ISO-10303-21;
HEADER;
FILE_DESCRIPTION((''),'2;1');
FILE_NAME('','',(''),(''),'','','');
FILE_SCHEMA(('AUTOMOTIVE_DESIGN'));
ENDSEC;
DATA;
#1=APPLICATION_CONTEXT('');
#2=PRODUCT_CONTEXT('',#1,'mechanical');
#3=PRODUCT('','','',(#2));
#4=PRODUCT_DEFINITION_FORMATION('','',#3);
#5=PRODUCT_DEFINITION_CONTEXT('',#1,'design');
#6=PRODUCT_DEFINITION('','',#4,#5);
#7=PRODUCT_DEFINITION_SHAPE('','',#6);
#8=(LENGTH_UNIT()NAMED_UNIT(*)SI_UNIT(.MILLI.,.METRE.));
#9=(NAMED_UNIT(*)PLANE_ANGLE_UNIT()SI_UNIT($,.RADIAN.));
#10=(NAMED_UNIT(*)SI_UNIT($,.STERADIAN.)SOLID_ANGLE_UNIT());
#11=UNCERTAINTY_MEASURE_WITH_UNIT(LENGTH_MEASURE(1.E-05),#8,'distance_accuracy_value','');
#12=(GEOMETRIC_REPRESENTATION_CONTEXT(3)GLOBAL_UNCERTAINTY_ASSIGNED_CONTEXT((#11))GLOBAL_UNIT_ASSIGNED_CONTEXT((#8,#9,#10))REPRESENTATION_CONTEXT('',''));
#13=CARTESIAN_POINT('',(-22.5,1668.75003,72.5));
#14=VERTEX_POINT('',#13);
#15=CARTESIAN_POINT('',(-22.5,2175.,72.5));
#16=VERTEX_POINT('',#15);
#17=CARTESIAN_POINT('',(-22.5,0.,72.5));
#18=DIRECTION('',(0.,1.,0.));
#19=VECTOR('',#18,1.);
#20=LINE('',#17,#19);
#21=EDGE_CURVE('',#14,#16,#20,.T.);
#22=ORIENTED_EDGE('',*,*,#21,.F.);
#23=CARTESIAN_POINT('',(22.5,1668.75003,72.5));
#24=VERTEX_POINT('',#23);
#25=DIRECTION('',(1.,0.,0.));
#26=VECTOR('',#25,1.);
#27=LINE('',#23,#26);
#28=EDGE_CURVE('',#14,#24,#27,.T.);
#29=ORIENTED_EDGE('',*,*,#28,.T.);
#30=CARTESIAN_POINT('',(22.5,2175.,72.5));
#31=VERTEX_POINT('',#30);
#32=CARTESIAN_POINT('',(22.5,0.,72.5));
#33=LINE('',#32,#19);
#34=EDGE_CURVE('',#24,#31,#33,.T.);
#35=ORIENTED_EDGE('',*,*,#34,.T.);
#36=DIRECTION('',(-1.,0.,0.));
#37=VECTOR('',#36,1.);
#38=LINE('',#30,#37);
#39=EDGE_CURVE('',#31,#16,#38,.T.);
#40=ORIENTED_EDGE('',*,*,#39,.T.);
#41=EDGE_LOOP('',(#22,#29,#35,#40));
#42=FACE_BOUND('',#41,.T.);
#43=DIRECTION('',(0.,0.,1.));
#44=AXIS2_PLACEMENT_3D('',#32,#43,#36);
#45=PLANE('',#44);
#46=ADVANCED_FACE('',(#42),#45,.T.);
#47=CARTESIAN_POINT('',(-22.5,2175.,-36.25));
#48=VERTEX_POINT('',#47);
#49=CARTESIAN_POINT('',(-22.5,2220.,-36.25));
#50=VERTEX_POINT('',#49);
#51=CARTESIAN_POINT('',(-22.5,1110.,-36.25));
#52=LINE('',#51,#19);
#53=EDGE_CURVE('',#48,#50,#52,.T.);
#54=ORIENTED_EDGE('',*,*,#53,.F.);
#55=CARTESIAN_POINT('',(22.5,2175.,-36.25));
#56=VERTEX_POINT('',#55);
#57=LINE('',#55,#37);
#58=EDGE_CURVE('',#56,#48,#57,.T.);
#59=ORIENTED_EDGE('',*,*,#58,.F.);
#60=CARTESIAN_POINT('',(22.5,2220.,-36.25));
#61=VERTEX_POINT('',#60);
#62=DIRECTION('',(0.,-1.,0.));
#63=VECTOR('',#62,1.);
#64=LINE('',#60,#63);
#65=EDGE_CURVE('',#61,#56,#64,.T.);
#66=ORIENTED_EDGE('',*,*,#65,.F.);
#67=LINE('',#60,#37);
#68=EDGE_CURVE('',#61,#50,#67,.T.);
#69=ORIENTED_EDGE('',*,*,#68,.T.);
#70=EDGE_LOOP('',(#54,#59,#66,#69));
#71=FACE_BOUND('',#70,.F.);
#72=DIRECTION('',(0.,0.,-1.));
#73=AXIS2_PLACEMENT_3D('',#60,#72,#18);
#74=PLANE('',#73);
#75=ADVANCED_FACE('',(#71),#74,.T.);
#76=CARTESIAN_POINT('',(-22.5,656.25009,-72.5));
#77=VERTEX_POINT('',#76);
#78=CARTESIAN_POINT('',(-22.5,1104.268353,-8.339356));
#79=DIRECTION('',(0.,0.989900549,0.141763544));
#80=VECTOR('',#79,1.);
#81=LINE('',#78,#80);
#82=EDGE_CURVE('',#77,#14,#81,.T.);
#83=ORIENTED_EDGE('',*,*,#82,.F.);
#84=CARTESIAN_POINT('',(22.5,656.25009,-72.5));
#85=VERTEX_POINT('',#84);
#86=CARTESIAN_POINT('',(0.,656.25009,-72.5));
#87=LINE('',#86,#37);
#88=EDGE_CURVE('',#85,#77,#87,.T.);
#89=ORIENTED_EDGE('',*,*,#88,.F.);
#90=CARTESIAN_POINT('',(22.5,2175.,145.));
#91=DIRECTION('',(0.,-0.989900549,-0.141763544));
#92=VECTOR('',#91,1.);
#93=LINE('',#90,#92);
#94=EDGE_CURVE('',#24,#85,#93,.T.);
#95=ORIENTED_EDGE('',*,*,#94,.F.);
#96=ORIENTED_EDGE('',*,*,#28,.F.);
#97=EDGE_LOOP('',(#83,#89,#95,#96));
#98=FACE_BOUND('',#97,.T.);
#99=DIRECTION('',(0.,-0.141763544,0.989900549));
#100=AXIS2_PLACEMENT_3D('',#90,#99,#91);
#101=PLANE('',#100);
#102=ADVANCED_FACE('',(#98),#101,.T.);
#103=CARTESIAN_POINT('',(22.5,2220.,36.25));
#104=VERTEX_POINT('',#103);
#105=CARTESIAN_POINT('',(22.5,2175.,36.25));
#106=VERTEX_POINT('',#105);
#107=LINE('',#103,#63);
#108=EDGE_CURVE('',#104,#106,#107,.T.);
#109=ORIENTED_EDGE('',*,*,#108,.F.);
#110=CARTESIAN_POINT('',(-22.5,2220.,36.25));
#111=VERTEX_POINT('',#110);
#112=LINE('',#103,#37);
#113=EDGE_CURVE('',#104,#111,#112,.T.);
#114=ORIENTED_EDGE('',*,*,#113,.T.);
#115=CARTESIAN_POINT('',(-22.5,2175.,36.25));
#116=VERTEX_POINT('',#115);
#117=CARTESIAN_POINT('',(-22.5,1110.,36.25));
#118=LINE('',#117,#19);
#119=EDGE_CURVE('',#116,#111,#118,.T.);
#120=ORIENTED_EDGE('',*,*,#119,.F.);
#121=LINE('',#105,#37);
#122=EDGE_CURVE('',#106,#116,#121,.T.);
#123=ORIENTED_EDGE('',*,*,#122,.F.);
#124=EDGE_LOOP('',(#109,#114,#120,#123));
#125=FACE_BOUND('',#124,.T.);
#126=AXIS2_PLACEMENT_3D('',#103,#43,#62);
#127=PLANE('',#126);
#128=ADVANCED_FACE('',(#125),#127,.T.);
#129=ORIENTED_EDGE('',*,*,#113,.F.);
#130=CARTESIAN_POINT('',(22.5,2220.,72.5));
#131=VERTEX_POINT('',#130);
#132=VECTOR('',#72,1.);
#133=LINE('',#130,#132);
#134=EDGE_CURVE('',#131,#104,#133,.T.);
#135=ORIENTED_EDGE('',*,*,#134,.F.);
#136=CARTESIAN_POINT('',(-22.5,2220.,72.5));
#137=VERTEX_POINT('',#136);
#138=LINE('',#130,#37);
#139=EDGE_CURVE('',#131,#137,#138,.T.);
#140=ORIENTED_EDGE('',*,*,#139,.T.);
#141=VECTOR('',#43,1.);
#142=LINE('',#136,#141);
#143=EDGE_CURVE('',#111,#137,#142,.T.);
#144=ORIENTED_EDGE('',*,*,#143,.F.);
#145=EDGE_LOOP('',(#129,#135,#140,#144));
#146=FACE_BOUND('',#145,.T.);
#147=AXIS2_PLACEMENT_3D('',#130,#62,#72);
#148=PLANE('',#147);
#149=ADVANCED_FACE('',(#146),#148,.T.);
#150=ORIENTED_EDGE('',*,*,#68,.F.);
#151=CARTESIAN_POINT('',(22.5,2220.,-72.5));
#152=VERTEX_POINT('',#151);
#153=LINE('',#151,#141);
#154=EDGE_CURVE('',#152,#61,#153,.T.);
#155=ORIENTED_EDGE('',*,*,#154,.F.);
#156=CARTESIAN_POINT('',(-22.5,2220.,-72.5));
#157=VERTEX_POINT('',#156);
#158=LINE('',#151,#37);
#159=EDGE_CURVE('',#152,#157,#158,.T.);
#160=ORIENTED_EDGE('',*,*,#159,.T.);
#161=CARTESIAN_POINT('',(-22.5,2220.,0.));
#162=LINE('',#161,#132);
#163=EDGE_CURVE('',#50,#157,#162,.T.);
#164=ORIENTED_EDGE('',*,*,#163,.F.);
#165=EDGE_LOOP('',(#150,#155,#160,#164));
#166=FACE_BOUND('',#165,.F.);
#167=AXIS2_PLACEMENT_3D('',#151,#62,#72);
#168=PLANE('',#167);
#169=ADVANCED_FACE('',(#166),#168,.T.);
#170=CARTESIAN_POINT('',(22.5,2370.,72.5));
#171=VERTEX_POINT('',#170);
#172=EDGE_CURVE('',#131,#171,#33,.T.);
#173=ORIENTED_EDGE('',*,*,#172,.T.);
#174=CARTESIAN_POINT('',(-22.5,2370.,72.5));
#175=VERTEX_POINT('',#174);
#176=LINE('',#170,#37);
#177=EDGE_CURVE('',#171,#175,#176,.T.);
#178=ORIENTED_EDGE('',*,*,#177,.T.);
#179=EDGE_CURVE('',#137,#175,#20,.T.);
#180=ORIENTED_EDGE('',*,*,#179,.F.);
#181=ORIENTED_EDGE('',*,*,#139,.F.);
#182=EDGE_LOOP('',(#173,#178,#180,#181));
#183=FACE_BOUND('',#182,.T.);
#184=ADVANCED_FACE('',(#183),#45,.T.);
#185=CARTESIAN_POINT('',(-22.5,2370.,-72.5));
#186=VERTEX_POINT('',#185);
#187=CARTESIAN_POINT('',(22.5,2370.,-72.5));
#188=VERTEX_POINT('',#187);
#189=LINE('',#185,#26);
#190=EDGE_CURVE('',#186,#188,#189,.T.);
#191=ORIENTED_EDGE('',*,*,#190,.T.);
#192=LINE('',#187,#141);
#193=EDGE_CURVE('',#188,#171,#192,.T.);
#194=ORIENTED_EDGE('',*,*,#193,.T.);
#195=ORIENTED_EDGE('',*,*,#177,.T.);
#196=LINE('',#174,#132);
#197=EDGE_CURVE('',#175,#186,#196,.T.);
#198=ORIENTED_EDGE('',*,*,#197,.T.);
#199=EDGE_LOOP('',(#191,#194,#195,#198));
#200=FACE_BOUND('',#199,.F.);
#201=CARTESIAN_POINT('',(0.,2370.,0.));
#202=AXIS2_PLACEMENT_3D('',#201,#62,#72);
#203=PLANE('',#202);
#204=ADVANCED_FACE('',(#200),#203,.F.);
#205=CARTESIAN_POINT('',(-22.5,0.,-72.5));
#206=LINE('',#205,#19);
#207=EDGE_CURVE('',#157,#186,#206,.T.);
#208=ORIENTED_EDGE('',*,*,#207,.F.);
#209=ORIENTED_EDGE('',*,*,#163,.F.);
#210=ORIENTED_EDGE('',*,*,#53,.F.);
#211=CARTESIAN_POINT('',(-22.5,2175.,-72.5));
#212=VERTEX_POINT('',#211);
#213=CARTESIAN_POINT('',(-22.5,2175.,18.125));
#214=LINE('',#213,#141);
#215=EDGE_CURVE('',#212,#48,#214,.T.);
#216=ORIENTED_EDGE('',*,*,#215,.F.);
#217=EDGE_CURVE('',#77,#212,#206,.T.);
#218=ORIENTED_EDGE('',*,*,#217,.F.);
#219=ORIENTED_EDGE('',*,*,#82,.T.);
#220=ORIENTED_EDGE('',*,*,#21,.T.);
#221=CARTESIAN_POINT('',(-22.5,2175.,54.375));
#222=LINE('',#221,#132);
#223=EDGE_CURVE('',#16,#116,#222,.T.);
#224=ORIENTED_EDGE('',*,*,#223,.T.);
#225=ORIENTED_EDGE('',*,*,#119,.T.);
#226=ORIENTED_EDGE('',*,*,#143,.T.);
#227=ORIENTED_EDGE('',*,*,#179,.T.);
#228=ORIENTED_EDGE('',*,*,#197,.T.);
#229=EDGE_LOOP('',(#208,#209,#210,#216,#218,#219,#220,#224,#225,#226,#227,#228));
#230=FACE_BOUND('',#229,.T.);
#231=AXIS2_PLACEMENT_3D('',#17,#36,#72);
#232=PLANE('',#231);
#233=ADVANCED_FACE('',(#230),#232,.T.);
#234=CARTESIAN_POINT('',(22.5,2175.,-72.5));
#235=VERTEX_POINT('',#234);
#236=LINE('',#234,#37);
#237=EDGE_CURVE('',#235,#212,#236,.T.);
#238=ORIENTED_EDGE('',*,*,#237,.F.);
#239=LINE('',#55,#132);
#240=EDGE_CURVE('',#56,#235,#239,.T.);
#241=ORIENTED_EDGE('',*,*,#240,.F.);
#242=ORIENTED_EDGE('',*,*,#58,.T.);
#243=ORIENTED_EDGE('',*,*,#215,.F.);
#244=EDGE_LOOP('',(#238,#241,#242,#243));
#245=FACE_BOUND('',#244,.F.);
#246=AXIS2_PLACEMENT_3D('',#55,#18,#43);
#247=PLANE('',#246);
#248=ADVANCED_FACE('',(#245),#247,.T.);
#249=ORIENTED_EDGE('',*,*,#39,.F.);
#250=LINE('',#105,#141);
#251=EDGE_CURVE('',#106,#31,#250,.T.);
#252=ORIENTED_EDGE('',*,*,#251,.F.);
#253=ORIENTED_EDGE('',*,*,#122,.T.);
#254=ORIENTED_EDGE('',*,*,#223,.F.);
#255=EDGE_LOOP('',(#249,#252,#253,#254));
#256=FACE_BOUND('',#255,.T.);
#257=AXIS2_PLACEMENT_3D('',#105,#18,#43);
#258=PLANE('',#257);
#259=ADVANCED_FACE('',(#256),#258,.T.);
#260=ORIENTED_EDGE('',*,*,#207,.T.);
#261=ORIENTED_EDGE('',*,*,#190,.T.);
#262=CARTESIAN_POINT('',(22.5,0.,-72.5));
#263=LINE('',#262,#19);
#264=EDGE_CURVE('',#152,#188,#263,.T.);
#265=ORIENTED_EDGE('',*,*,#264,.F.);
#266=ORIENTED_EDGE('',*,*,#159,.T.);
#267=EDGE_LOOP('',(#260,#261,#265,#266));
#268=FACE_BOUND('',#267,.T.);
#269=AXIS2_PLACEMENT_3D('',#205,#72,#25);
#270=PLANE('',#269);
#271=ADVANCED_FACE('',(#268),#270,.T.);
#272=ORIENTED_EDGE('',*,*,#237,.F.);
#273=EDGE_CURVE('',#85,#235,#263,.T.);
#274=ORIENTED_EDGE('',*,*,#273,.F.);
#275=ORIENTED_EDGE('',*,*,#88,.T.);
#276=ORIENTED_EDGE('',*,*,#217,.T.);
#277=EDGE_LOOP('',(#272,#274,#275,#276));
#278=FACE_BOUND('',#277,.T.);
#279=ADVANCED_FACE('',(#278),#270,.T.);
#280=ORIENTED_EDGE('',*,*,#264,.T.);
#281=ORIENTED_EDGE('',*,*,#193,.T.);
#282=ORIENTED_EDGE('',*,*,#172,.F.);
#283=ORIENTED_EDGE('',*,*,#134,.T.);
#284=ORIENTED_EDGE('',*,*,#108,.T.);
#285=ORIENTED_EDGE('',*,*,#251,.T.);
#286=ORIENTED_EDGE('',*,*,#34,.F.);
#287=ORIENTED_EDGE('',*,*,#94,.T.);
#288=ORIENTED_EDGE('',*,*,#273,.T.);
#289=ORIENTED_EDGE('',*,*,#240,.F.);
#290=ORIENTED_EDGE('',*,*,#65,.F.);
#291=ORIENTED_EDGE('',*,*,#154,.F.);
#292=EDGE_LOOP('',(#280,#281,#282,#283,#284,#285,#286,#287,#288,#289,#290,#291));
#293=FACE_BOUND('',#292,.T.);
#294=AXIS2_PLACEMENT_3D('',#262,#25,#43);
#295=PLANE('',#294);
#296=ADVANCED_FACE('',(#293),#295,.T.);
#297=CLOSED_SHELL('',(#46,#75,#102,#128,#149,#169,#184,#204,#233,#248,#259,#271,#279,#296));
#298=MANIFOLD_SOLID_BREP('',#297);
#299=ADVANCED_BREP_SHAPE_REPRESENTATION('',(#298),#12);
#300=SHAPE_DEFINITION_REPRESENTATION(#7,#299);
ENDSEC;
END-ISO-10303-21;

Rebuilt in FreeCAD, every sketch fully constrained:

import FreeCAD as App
import Part
import Sketcher


def add_polygon(sketch, points):
    """Adds a closed chain of lines whose ends are joined by coincident constraints."""
    first, n = sketch.GeometryCount, len(points)
    for a, b in zip(points, points[1:] + points[:1]):
        sketch.addGeometry(Part.LineSegment(App.Vector(*a, 0), App.Vector(*b, 0)), False)
    for i in range(n):
        sketch.addConstraint(Sketcher.Constraint("Coincident", first + i, 2, first + (i + 1) % n, 1))

doc = App.newDocument("Part")
body = doc.addObject("PartDesign::Body", "Body")

sketch1 = body.newObject("Sketcher::SketchObject", "Sketch")
sketch1.AttachmentSupport = (doc.getObject("XZ_Plane"), [""])
sketch1.MapMode = "FlatFace"
add_polygon(sketch1, [(-22.5, 72.5), (-22.5, -72.5), (22.5, -72.5), (22.5, 72.5)])
sketch1.addConstraint([
    Sketcher.Constraint("Vertical", 0),
    Sketcher.Constraint("Horizontal", 1),
    Sketcher.Constraint("Vertical", 2),
    Sketcher.Constraint("Horizontal", 3),
    Sketcher.Constraint("Symmetric", 0, 2, 2, 2, -1, 1),
    Sketcher.Constraint("DistanceX", 1, 1, 1, 2, 45.0),
    Sketcher.Constraint("DistanceY", 0, 2, 0, 1, 145.0),
])
pad1 = body.newObject("PartDesign::Pad", "Pad")
pad1.Profile = sketch1
pad1.Length = 2370
pad1.Reversed = True

sketch2 = body.newObject("Sketcher::SketchObject", "Sketch001")
sketch2.AttachmentSupport = (doc.getObject("YZ_Plane"), [""])
sketch2.MapMode = "FlatFace"
sketch2.AttachmentOffset = App.Placement(App.Vector(0, 0, 22.5), App.Rotation())
add_polygon(sketch2, [(2220, 36.25), (2220, 72.5), (2175, 72.5), (2175, 36.25)])
add_polygon(sketch2, [(195, 72.5), (150, 72.5), (150, 36.25), (195, 36.25)])
sketch2.addConstraint([
    Sketcher.Constraint("Vertical", 0),
    Sketcher.Constraint("Horizontal", 1),
    Sketcher.Constraint("Vertical", 2),
    Sketcher.Constraint("Horizontal", 3),
    Sketcher.Constraint("Horizontal", 4),
    Sketcher.Constraint("Vertical", 5),
    Sketcher.Constraint("Horizontal", 6),
    Sketcher.Constraint("Vertical", 7),
    Sketcher.Constraint("Horizontal", 1, 2, 4, 2),
    Sketcher.Constraint("Horizontal", 3, 2, 5, 2),
    Sketcher.Constraint("Equal", 3, 4),
    Sketcher.Constraint("DistanceX", 1, 2, 1, 1, 45.0),
    Sketcher.Constraint("DistanceX", -1, 1, 0, 2, 2220.0),
    Sketcher.Constraint("DistanceX", -1, 1, 4, 2, 150.0),
    Sketcher.Constraint("DistanceY", 0, 1, 0, 2, 36.25),
    Sketcher.Constraint("DistanceY", -1, 1, 0, 2, 72.5),
])
pocket1 = body.newObject("PartDesign::Pocket", "Pocket")
pocket1.Profile = sketch2
pocket1.Length = 89.2118
doc.recompute()

mirrored = body.newObject("PartDesign::Mirrored", "Mirrored")
mirrored.Originals = [pocket1]
mirrored.MirrorPlane = (doc.getObject("XY_Plane"), [""])
body.Tip = mirrored

sketch3 = body.newObject("Sketcher::SketchObject", "Sketch002")
sketch3.AttachmentSupport = (doc.getObject("YZ_Plane"), [""])
sketch3.MapMode = "FlatFace"
sketch3.AttachmentOffset = App.Placement(App.Vector(0, 0, 22.5), App.Rotation())
add_polygon(sketch3, [(0, -166.4815), (2175, 145), (0, 145)])
sketch3.addConstraint([
    Sketcher.Constraint("Horizontal", 1),
    Sketcher.Constraint("Vertical", 2),
    Sketcher.Constraint("PointOnObject", 1, 2, -2),
    Sketcher.Constraint("DistanceX", 1, 2, 1, 1, 2175.0),
    Sketcher.Constraint("DistanceY", -1, 1, 0, 2, 145.0),
    Sketcher.Constraint("DistanceY", 2, 2, 2, 1, 311.4815),
])
pocket2 = body.newObject("PartDesign::Pocket", "Pocket001")
pocket2.Profile = sketch3
pocket2.Length = 53.381

doc.recompute()
